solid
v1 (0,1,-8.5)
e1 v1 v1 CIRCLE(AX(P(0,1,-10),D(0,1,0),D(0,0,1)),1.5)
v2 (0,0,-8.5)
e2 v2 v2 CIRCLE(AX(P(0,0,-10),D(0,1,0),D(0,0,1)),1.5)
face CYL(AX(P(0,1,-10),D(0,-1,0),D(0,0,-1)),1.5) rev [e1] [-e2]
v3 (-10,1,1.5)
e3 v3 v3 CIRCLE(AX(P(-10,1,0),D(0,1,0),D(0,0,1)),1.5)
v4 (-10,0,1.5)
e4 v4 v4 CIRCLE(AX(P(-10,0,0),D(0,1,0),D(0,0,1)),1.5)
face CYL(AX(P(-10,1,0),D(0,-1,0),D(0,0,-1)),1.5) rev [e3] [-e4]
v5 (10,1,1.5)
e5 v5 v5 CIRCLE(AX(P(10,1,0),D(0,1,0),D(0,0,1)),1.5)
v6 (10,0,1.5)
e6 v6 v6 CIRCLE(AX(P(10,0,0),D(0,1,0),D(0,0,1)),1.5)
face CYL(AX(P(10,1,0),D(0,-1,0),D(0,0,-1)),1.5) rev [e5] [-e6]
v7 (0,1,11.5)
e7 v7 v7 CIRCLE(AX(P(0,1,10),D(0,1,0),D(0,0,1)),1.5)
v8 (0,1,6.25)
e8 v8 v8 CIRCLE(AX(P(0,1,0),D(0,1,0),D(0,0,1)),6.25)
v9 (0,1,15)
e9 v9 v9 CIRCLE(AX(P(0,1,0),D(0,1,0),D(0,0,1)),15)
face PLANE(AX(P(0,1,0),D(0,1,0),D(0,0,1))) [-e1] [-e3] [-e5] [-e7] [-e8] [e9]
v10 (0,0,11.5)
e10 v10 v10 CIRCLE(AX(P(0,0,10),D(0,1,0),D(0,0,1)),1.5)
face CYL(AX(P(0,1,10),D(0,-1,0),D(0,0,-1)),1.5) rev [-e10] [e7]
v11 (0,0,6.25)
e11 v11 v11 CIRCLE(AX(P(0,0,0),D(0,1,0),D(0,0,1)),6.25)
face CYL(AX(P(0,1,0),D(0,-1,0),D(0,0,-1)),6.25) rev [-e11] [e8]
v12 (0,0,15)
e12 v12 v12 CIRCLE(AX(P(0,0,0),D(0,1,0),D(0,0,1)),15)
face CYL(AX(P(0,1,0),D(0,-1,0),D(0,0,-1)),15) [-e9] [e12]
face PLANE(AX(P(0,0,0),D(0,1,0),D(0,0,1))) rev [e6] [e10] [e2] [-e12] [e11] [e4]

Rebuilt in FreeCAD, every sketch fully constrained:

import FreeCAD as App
import Part
import Sketcher

V = App.Vector

doc = App.newDocument("Part")
body = doc.addObject("PartDesign::Body", "Body")

# Sketch on XZ plane
sketch1 = body.newObject("Sketcher::SketchObject", "Sketch")
sketch1.AttachmentSupport = (doc.getObject("XZ_Plane"), [""])
sketch1.MapMode = "FlatFace"
sketch1.addGeometry([
    Part.Circle(V(0, 0, 0), V(0, 0, 1), 15),  # 0
    Part.Circle(V(0, -10, 0), V(0, 0, 1), 1.5),  # 1
    Part.Circle(V(-10, 0, 0), V(0, 0, 1), 1.5),  # 2
    Part.Circle(V(10, 0, 0), V(0, 0, 1), 1.5),  # 3
    Part.Circle(V(0, 0, 0), V(0, 0, 1), 6.2),  # 4
    Part.Circle(V(0, 10, 0), V(0, 0, 1), 1.5),  # 5
], False)
sketch1.addConstraint([
    Sketcher.Constraint("Coincident", 0, 3, -1, 1),
    Sketcher.Constraint("Coincident", 4, 3, -1, 1),
    Sketcher.Constraint("Equal", 1, 2),
    Sketcher.Constraint("Equal", 2, 3),
    Sketcher.Constraint("Equal", 3, 5),
    Sketcher.Constraint("Symmetric", 2, 3, 3, 3, -1, 1),
    Sketcher.Constraint("Symmetric", 1, 3, 5, 3, -1, 1),
    Sketcher.Constraint("PointOnObject", 1, 3, -2),
    Sketcher.Constraint("PointOnObject", 2, 3, -1),
    Sketcher.Constraint("Diameter", 0, 30.0),
    Sketcher.Constraint("Diameter", 1, 3.0),
    Sketcher.Constraint("Diameter", 4, 12.5),
    Sketcher.Constraint("DistanceY", 1, 3, -1, 1, 10.0),
    Sketcher.Constraint("DistanceX", 2, 3, -1, 1, 10.0),
])
pad1 = body.newObject("PartDesign::Pad", "Pad")
pad1.Profile = sketch1
pad1.Length = 1
pad1.Reversed = True

doc.recompute()
